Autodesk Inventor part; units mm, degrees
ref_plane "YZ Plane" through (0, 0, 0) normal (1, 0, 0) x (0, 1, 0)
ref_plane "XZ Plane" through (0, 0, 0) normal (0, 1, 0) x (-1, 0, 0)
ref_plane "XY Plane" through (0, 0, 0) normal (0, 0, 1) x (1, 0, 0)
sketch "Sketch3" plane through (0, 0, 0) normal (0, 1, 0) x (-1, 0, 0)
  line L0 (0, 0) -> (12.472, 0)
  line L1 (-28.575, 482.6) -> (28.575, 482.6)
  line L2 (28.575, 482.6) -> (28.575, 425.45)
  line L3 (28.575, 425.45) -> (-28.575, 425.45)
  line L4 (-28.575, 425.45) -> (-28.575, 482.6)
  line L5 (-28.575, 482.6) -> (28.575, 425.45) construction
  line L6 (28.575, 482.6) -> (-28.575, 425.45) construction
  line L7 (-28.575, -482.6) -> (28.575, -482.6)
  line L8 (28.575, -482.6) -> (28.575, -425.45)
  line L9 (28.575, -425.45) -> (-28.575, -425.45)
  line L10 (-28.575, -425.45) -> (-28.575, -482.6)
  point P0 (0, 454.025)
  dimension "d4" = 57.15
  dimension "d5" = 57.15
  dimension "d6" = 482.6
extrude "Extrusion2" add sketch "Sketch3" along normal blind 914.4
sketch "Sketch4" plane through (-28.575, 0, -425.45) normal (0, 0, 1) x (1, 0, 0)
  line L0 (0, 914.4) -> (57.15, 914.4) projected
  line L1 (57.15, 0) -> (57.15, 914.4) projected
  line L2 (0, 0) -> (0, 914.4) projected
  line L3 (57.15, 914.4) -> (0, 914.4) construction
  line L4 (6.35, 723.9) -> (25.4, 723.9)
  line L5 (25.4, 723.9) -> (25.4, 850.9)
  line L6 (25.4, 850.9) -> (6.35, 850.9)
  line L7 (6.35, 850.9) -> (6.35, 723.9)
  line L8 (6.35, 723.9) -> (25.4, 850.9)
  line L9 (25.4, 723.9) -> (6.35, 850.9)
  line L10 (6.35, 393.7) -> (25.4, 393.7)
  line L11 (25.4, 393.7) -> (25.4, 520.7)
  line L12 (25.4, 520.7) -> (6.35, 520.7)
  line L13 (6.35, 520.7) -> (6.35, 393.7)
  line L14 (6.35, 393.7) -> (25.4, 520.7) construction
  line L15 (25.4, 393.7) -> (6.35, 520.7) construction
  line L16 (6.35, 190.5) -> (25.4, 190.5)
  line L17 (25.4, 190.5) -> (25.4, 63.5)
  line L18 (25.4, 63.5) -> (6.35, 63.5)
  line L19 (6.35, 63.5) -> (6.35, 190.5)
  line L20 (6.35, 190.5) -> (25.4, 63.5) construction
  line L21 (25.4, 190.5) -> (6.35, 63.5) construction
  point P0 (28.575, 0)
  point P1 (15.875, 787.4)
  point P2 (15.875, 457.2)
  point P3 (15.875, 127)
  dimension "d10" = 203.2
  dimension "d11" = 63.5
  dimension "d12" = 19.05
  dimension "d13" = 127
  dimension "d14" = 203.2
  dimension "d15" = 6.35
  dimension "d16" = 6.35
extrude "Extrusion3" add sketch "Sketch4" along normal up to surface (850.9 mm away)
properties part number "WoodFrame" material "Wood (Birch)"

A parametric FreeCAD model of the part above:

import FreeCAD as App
import Part
import Sketcher

V = App.Vector
Q = App.Units.Quantity

doc = App.newDocument("Part")
body = doc.addObject("PartDesign::Body", "Body")
body.AllowCompound = True

# Sketch on XZ plane
sketch1 = body.newObject("Sketcher::SketchObject", "Sketch")
sketch1.AttachmentSupport = (doc.getObject("XZ_Plane"), [""])
sketch1.MapMode = "FlatFace"
sketch1.addGeometry([
    Part.LineSegment(V(-29, 483, 0), V(29, 483, 0)),  # 0
    Part.LineSegment(V(29, 483, 0), V(29, 425, 0)),  # 1
    Part.LineSegment(V(29, 425, 0), V(-29, 425, 0)),  # 2
    Part.LineSegment(V(-29, 425, 0), V(-29, 483, 0)),  # 3
    Part.LineSegment(V(29, -425, 0), V(29, -483, 0)),  # 4
    Part.LineSegment(V(29, -483, 0), V(-29, -483, 0)),  # 5
    Part.LineSegment(V(-29, -483, 0), V(-29, -425, 0)),  # 6
    Part.LineSegment(V(-29, -425, 0), V(29, -425, 0)),  # 7
], False)
sketch1.addConstraint([
    Sketcher.Constraint("Coincident", 0, 2, 1, 1),
    Sketcher.Constraint("Coincident", 1, 2, 2, 1),
    Sketcher.Constraint("Coincident", 2, 2, 3, 1),
    Sketcher.Constraint("Coincident", 3, 2, 0, 1),
    Sketcher.Constraint("Coincident", 4, 2, 5, 1),
    Sketcher.Constraint("Coincident", 5, 2, 6, 1),
    Sketcher.Constraint("Coincident", 6, 2, 7, 1),
    Sketcher.Constraint("Coincident", 7, 2, 4, 1),
    Sketcher.Constraint("Horizontal", 0),
    Sketcher.Constraint("Vertical", 1),
    Sketcher.Constraint("Horizontal", 2),
    Sketcher.Constraint("Vertical", 3),
    Sketcher.Constraint("Vertical", 4),
    Sketcher.Constraint("Horizontal", 5),
    Sketcher.Constraint("Vertical", 6),
    Sketcher.Constraint("Horizontal", 7),
    Sketcher.Constraint("Symmetric", 3, 2, 4, 2, -1, 1),
    Sketcher.Constraint("Symmetric", 1, 2, 6, 2, -1, 1),
    Sketcher.Constraint("Vertical", 1, 2, 4, 2),
    Sketcher.Constraint("Equal", 7, 1),
    Sketcher.Constraint("DistanceY", -1, 1, 0, 2, Q("19 in")),
    Sketcher.Constraint("DistanceX", 0, 1, 0, 2, Q("2.25 in")),
])
pad1 = body.newObject("PartDesign::Pad", "Pad")
pad1.Profile = sketch1
pad1.Length = Q("36 in")
pad1.Reversed = True

# Sketch on XY plane
sketch2 = body.newObject("Sketcher::SketchObject", "Sketch001")
sketch2.AttachmentSupport = (doc.getObject("XY_Plane"), [""])
sketch2.MapMode = "FlatFace"
sketch2.AttachmentOffset = App.Placement(V(0, 0, -16.75 * 25.4), App.Rotation())
sketch2.addGeometry([
    Part.LineSegment(V(-22, 724, 0), V(-3, 724, 0)),  # 0
    Part.LineSegment(V(-3, 724, 0), V(-3, 851, 0)),  # 1
    Part.LineSegment(V(-3, 851, 0), V(-22, 851, 0)),  # 2
    Part.LineSegment(V(-22, 851, 0), V(-22, 724, 0)),  # 3
    Part.LineSegment(V(-22, 521, 0), V(-22, 394, 0)),  # 4
    Part.LineSegment(V(-22, 394, 0), V(-3, 394, 0)),  # 5
    Part.LineSegment(V(-3, 394, 0), V(-3, 521, 0)),  # 6
    Part.LineSegment(V(-3, 521, 0), V(-22, 521, 0)),  # 7
    Part.LineSegment(V(-3, 190, 0), V(-22, 190, 0)),  # 8
    Part.LineSegment(V(-22, 190, 0), V(-22, 64, 0)),  # 9
    Part.LineSegment(V(-22, 64, 0), V(-3, 64, 0)),  # 10
    Part.LineSegment(V(-3, 64, 0), V(-3, 190, 0)),  # 11
], False)
sketch2.addConstraint([
    Sketcher.Constraint("Coincident", 0, 2, 1, 1),
    Sketcher.Constraint("Coincident", 1, 2, 2, 1),
    Sketcher.Constraint("Coincident", 2, 2, 3, 1),
    Sketcher.Constraint("Coincident", 3, 2, 0, 1),
    Sketcher.Constraint("Coincident", 4, 2, 5, 1),
    Sketcher.Constraint("Coincident", 5, 2, 6, 1),
    Sketcher.Constraint("Coincident", 6, 2, 7, 1),
    Sketcher.Constraint("Coincident", 7, 2, 4, 1),
    Sketcher.Constraint("Coincident", 8, 2, 9, 1),
    Sketcher.Constraint("Coincident", 9, 2, 10, 1),
    Sketcher.Constraint("Coincident", 10, 2, 11, 1),
    Sketcher.Constraint("Coincident", 11, 2, 8, 1),
    Sketcher.Constraint("Horizontal", 0),
    Sketcher.Constraint("Vertical", 1),
    Sketcher.Constraint("Horizontal", 2),
    Sketcher.Constraint("Vertical", 3),
    Sketcher.Constraint("Vertical", 4),
    Sketcher.Constraint("Horizontal", 5),
    Sketcher.Constraint("Vertical", 6),
    Sketcher.Constraint("Horizontal", 7),
    Sketcher.Constraint("Horizontal", 8),
    Sketcher.Constraint("Vertical", 9),
    Sketcher.Constraint("Horizontal", 10),
    Sketcher.Constraint("Vertical", 11),
    Sketcher.Constraint("Vertical", 3, 2, 4, 2),
    Sketcher.Constraint("Vertical", 1, 2, 5, 2),
    Sketcher.Constraint("Vertical", 7, 2, 8, 2),
    Sketcher.Constraint("Vertical", 6, 2, 10, 2),
    Sketcher.Constraint("Equal", 3, 4),
    Sketcher.Constraint("Equal", 6, 9),
    Sketcher.Constraint("DistanceY", 1, 1, 1, 2, Q("5 in")),
    Sketcher.Constraint("DistanceY", 6, 2, 0, 2, Q("8 in")),
    Sketcher.Constraint("DistanceY", 8, 2, 4, 2, Q("8 in")),
    Sketcher.Constraint("DistanceX", 0, 1, 0, 2, Q("0.75 in")),
    Sketcher.Constraint("DistanceY", -1, 1, 9, 2, Q("2.5 in")),
    Sketcher.Constraint("DistanceX", 0, 2, -1, 1, Q("0.125 in")),
])
pad2 = body.newObject("PartDesign::Pad", "Pad001")
pad2.Profile = sketch2
pad2.Length = Q("33.5 in")

doc.recompute()
